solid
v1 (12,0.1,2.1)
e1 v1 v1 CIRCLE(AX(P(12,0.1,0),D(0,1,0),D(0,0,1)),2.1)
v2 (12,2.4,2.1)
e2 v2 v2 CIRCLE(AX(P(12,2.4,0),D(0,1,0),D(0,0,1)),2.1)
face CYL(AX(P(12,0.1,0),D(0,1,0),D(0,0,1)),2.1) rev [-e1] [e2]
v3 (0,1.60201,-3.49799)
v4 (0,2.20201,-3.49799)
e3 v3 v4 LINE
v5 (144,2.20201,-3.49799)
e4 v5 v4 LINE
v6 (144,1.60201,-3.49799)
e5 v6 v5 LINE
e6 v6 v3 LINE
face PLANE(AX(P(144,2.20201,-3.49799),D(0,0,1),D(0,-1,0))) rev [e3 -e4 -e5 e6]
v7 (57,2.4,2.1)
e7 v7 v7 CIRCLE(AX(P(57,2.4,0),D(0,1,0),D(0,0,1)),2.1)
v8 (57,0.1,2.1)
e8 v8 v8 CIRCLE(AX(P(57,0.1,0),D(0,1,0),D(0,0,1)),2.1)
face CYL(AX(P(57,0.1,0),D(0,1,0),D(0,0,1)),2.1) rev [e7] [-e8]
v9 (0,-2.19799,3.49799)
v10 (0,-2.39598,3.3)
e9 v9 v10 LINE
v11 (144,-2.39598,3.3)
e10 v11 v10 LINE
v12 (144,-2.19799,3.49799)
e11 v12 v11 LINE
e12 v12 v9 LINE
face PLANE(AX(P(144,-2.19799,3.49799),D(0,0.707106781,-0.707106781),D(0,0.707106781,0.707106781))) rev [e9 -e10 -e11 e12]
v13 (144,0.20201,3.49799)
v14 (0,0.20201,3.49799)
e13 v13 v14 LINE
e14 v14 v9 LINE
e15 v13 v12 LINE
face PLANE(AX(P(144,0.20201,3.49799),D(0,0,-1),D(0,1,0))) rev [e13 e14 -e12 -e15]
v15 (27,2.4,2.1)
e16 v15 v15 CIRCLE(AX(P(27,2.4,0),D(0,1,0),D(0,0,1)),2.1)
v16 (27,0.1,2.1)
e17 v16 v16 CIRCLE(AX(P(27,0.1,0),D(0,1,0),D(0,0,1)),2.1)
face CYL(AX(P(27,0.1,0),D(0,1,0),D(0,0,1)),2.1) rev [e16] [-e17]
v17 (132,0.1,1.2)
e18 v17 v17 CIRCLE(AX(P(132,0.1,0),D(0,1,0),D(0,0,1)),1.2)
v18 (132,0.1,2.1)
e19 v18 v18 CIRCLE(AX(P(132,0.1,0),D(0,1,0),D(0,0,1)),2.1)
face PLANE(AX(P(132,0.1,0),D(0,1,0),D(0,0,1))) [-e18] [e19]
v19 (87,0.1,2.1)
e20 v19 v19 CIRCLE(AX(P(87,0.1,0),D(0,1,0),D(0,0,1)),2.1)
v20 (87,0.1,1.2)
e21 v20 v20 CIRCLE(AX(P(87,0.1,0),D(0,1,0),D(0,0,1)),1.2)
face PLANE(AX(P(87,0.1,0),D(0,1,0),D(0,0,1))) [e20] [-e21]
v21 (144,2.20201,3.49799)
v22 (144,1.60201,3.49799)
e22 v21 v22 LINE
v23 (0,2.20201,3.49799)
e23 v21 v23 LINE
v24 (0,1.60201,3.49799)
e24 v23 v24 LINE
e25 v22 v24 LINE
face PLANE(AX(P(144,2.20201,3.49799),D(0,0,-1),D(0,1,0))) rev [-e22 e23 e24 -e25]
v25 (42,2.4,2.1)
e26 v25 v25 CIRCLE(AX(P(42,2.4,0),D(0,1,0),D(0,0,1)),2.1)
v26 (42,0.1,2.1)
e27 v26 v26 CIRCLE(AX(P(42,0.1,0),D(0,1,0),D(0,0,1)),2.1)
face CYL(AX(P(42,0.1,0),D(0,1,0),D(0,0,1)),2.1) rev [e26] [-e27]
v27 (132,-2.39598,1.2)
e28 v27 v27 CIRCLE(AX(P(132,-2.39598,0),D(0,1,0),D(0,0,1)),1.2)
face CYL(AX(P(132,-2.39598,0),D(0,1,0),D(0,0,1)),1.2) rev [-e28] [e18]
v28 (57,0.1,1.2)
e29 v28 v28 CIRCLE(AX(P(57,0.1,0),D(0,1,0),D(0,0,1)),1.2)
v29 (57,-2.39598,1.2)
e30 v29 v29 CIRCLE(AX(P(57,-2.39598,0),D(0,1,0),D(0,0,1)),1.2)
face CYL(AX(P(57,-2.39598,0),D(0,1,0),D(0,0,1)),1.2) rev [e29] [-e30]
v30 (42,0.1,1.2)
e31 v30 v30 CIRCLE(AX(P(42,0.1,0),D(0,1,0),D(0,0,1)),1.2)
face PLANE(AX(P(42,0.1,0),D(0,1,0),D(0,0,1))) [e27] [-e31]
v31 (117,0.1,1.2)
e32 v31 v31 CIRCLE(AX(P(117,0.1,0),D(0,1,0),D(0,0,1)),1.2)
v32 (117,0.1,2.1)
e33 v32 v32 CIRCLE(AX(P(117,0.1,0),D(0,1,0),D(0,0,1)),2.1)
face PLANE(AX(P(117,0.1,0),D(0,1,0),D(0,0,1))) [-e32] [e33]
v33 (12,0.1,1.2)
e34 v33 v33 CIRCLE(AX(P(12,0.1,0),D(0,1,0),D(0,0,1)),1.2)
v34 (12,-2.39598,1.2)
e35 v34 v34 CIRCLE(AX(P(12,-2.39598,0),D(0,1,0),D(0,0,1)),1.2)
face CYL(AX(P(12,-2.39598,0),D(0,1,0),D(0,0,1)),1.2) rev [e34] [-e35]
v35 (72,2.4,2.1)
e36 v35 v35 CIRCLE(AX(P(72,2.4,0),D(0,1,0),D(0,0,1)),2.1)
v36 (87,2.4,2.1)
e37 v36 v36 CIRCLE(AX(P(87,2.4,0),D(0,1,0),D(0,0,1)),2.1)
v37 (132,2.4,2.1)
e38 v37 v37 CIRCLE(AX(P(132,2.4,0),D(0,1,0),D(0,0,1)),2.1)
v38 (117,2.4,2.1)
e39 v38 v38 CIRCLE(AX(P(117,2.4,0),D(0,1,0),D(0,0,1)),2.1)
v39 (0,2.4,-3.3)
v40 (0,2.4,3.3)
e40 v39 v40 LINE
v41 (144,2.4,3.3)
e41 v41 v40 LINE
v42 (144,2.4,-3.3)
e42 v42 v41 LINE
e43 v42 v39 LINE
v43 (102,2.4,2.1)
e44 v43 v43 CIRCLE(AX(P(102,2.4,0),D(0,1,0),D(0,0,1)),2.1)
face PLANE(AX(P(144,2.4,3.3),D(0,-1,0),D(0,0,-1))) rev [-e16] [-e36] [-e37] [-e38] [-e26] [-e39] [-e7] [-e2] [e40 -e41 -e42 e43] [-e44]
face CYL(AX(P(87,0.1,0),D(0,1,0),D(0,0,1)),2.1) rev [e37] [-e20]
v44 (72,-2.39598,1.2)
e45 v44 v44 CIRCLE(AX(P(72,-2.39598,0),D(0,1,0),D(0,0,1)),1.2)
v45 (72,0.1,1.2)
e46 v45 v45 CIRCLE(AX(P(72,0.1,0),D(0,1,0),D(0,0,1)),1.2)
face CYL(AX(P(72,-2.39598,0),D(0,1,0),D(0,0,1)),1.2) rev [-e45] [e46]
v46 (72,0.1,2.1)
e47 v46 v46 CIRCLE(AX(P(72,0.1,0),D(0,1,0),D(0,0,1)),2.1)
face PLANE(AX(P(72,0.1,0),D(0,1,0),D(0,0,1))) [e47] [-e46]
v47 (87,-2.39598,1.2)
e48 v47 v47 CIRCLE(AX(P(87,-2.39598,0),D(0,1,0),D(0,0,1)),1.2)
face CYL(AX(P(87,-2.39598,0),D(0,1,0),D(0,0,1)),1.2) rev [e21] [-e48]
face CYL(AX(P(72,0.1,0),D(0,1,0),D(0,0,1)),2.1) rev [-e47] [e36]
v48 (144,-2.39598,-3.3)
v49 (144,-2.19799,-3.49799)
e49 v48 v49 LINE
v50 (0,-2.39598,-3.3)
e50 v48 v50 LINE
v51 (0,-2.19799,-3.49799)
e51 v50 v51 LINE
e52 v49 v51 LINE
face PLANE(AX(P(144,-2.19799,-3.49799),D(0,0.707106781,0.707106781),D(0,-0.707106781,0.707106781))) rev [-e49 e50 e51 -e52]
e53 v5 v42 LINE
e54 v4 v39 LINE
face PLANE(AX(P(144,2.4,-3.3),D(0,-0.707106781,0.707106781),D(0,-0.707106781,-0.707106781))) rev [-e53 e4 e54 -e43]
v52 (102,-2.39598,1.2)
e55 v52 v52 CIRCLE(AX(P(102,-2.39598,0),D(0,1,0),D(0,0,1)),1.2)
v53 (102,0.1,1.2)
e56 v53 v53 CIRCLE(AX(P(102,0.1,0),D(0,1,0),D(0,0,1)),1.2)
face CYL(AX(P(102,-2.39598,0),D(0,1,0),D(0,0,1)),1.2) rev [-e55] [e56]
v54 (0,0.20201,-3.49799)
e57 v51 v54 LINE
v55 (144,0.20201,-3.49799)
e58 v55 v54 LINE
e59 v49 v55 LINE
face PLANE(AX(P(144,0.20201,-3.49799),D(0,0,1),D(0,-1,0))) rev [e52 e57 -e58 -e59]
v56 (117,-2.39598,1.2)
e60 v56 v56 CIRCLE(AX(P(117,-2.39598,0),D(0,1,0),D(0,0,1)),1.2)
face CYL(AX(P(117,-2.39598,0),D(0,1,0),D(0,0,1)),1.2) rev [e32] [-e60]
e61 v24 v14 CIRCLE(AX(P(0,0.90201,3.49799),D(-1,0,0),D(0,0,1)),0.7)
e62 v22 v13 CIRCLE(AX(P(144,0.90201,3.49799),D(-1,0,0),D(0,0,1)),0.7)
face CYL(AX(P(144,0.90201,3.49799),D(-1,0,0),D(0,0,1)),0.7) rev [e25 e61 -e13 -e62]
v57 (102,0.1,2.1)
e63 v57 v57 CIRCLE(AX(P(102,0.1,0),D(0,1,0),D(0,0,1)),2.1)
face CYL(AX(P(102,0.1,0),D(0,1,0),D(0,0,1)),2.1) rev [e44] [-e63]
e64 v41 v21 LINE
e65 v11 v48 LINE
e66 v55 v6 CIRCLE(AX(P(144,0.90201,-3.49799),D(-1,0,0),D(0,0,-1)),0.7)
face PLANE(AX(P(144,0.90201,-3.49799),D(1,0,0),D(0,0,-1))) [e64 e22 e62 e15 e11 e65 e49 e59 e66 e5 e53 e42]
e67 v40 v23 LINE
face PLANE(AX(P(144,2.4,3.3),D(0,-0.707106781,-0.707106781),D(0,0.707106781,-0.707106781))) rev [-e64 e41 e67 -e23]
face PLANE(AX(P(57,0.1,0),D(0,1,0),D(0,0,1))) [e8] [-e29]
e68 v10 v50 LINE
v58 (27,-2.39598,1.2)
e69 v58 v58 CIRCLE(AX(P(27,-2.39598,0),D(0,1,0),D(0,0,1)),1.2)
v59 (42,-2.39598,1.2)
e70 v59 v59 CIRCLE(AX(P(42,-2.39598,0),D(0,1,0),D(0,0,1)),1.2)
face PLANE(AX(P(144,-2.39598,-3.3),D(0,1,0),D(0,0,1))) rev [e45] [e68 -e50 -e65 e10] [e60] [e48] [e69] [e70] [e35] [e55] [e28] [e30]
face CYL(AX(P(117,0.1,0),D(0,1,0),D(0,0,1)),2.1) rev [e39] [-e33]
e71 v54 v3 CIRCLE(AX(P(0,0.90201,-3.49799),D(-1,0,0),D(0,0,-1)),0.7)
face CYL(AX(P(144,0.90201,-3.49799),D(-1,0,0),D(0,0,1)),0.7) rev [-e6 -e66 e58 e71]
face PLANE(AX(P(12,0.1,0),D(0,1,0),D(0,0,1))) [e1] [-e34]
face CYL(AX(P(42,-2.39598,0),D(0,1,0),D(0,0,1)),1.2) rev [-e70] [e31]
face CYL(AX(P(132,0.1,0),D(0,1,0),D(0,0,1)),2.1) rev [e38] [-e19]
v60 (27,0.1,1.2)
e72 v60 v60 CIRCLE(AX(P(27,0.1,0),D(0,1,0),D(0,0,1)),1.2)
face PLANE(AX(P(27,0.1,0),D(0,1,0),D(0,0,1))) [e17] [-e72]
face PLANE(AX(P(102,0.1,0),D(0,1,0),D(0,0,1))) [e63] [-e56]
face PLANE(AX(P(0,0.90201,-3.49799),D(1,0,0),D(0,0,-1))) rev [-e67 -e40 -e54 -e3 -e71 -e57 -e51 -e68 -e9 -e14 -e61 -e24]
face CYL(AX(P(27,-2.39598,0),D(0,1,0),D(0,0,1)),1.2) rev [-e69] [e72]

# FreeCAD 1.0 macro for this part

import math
import FreeCAD as App
import Part
import Sketcher
Q = App.Units.Quantity

doc = App.newDocument("Part")
body = doc.addObject("PartDesign::Body", "Body")

# Sketch on YZ plane
sketch1 = doc.addObject("Sketcher::SketchObject", "Sketch")
body.addObject(sketch1)
sketch1.AttachmentSupport = (doc.YZ_Plane, [""])
sketch1.MapMode = "FlatFace"
sketch1.addGeometry([
    Part.LineSegment(App.Vector(-2.19799, -3.49799, 0), App.Vector(0.20201, -3.49799, 0)),  # 0
    Part.ArcOfCircle(Part.Circle(App.Vector(0.90201, -3.49799, 0), App.Vector(0, 0, 1), 0.7), math.radians(0), math.radians(180)),  # 1
    Part.LineSegment(App.Vector(1.60201, -3.49799, 0), App.Vector(2.20201, -3.49799, 0)),  # 2
    Part.LineSegment(App.Vector(2.20201, -3.49799, 0), App.Vector(2.4, -3.3, 0)),  # 3
    Part.LineSegment(App.Vector(2.4, -3.3, 0), App.Vector(2.4, 3.3, 0)),  # 4
    Part.LineSegment(App.Vector(2.4, 3.3, 0), App.Vector(2.20201, 3.49799, 0)),  # 5
    Part.LineSegment(App.Vector(2.20201, 3.49799, 0), App.Vector(1.60201, 3.49799, 0)),  # 6
    Part.ArcOfCircle(Part.Circle(App.Vector(0.90201, 3.49799, 0), App.Vector(0, 0, 1), 0.7), math.radians(180), math.radians(360)),  # 7
    Part.LineSegment(App.Vector(0.20201, 3.49799, 0), App.Vector(-2.19799, 3.49799, 0)),  # 8
    Part.LineSegment(App.Vector(-2.19799, 3.49799, 0), App.Vector(-2.39598, 3.3, 0)),  # 9
    Part.LineSegment(App.Vector(-2.39598, 3.3, 0), App.Vector(-2.39598, -3.3, 0)),  # 10
    Part.LineSegment(App.Vector(-2.39598, -3.3, 0), App.Vector(-2.19799, -3.49799, 0)),  # 11
], False)
sketch1.addConstraint([
    Sketcher.Constraint("Coincident", 0, 2, 1, 2),
    Sketcher.Constraint("Coincident", 1, 1, 2, 1),
    Sketcher.Constraint("Coincident", 2, 2, 3, 1),
    Sketcher.Constraint("Coincident", 3, 2, 4, 1),
    Sketcher.Constraint("Coincident", 4, 2, 5, 1),
    Sketcher.Constraint("Coincident", 5, 2, 6, 1),
    Sketcher.Constraint("Coincident", 6, 2, 7, 2),
    Sketcher.Constraint("Coincident", 7, 1, 8, 1),
    Sketcher.Constraint("Coincident", 8, 2, 9, 1),
    Sketcher.Constraint("Coincident", 9, 2, 10, 1),
    Sketcher.Constraint("Coincident", 10, 2, 11, 1),
    Sketcher.Constraint("Coincident", 11, 2, 0, 1),
    Sketcher.Constraint("Horizontal", 0),
    Sketcher.Constraint("Horizontal", 2),
    Sketcher.Constraint("Vertical", 4),
    Sketcher.Constraint("Horizontal", 6),
    Sketcher.Constraint("Horizontal", 8),
    Sketcher.Constraint("Vertical", 10),
    Sketcher.Constraint("Equal", 1, 7),
    Sketcher.Constraint("Symmetric", 1, 3, 7, 3, -1),
    Sketcher.Constraint("Symmetric", 2, 2, 5, 2, -1),
    Sketcher.Constraint("Symmetric", 8, 2, 11, 2, -1),
    Sketcher.Constraint("Perpendicular", 3, 5),
    Sketcher.Constraint("Perpendicular", 5, 9),
    Sketcher.Constraint("Perpendicular", 9, 11),
    Sketcher.Constraint("Horizontal", 1, 3, 0, 2),
    Sketcher.Constraint("Horizontal", 0, 2, 1, 1),
    Sketcher.Constraint("Horizontal", 4, 2, 9, 2),
    Sketcher.Constraint("Horizontal", 3, 2, 10, 2),
    Sketcher.Constraint("Radius", 1, Q("0.7 mm")),
    Sketcher.Constraint("DistanceX", 0, 1, 0, 2, Q("2.4 mm")),
    Sketcher.Constraint("DistanceX", 2, 1, 2, 2, Q("0.6 mm")),
    Sketcher.Constraint("DistanceY", 4, 1, 4, 2, Q("6.6 mm")),
    Sketcher.Constraint("DistanceX", -1, 1, 3, 2, Q("2.4 mm")),
    Sketcher.Constraint("Distance", 3, Q("0.28 mm")),
])
pad1 = doc.addObject("PartDesign::Pad", "Pad")
body.addObject(pad1)
pad1.Profile = sketch1
pad1.Length = 144

# Sketch on XZ plane
sketch2 = doc.addObject("Sketcher::SketchObject", "Sketch001")
body.addObject(sketch2)
sketch2.AttachmentSupport = (doc.XZ_Plane, [""])
sketch2.MapMode = "FlatFace"
sketch2.AttachmentOffset = App.Placement(App.Vector(0, 0, -2.4), App.Rotation())
sketch2.addGeometry([
    Part.Circle(App.Vector(12, 0, 0), App.Vector(0, 0, 1), 2.1),  # 0
    Part.Circle(App.Vector(27, 0, 0), App.Vector(0, 0, 1), 2.1),  # 1
    Part.Circle(App.Vector(42, 0, 0), App.Vector(0, 0, 1), 2.1),  # 2
    Part.Circle(App.Vector(57, 0, 0), App.Vector(0, 0, 1), 2.1),  # 3
    Part.Circle(App.Vector(72, 0, 0), App.Vector(0, 0, 1), 2.1),  # 4
    Part.Circle(App.Vector(87, 0, 0), App.Vector(0, 0, 1), 2.1),  # 5
    Part.Circle(App.Vector(102, 0, 0), App.Vector(0, 0, 1), 2.1),  # 6
    Part.Circle(App.Vector(117, 0, 0), App.Vector(0, 0, 1), 2.1),  # 7
    Part.Circle(App.Vector(132, 0, 0), App.Vector(0, 0, 1), 2.1),  # 8
    Part.Circle(App.Vector(147, 0, 0), App.Vector(0, 0, 1), 2.1),  # 9
    Part.Circle(App.Vector(162, 0, 0), App.Vector(0, 0, 1), 2.1),  # 10
    Part.Circle(App.Vector(177, 0, 0), App.Vector(0, 0, 1), 2.1),  # 11
    Part.Circle(App.Vector(192, 0, 0), App.Vector(0, 0, 1), 2.1),  # 12
    Part.Circle(App.Vector(207, 0, 0), App.Vector(0, 0, 1), 2.1),  # 13
    Part.Circle(App.Vector(222, 0, 0), App.Vector(0, 0, 1), 2.1),  # 14
], False)
sketch2.addConstraint([
    Sketcher.Constraint("Equal", 0, 1),
    Sketcher.Constraint("Equal", 1, 2),
    Sketcher.Constraint("Equal", 2, 3),
    Sketcher.Constraint("Equal", 3, 4),
    Sketcher.Constraint("Equal", 4, 5),
    Sketcher.Constraint("Equal", 5, 6),
    Sketcher.Constraint("Equal", 6, 7),
    Sketcher.Constraint("Equal", 7, 8),
    Sketcher.Constraint("Equal", 8, 9),
    Sketcher.Constraint("Equal", 9, 10),
    Sketcher.Constraint("Equal", 10, 11),
    Sketcher.Constraint("Equal", 11, 12),
    Sketcher.Constraint("Equal", 12, 13),
    Sketcher.Constraint("Equal", 13, 14),
    Sketcher.Constraint("PointOnObject", 0, 3, -1),
    Sketcher.Constraint("PointOnObject", 1, 3, -1),
    Sketcher.Constraint("PointOnObject", 2, 3, -1),
    Sketcher.Constraint("PointOnObject", 3, 3, -1),
    Sketcher.Constraint("PointOnObject", 4, 3, -1),
    Sketcher.Constraint("PointOnObject", 5, 3, -1),
    Sketcher.Constraint("PointOnObject", 6, 3, -1),
    Sketcher.Constraint("PointOnObject", 7, 3, -1),
    Sketcher.Constraint("PointOnObject", 8, 3, -1),
    Sketcher.Constraint("PointOnObject", 9, 3, -1),
    Sketcher.Constraint("PointOnObject", 10, 3, -1),
    Sketcher.Constraint("PointOnObject", 11, 3, -1),
    Sketcher.Constraint("PointOnObject", 12, 3, -1),
    Sketcher.Constraint("PointOnObject", 13, 3, -1),
    Sketcher.Constraint("PointOnObject", 14, 3, -1),
    Sketcher.Constraint("Diameter", 0, Q("4.2 mm")),
    Sketcher.Constraint("DistanceX", -1, 1, 0, 3, Q("12 mm")),
    Sketcher.Constraint("DistanceX", -1, 1, 1, 3, Q("27 mm")),
    Sketcher.Constraint("DistanceX", -1, 1, 2, 3, Q("42 mm")),
    Sketcher.Constraint("DistanceX", -1, 1, 3, 3, Q("57 mm")),
    Sketcher.Constraint("DistanceX", -1, 1, 4, 3, Q("72 mm")),
    Sketcher.Constraint("DistanceX", -1, 1, 5, 3, Q("87 mm")),
    Sketcher.Constraint("DistanceX", -1, 1, 6, 3, Q("102 mm")),
    Sketcher.Constraint("DistanceX", -1, 1, 7, 3, Q("117 mm")),
    Sketcher.Constraint("DistanceX", -1, 1, 8, 3, Q("132 mm")),
    Sketcher.Constraint("DistanceX", -1, 1, 9, 3, Q("147 mm")),
    Sketcher.Constraint("DistanceX", -1, 1, 10, 3, Q("162 mm")),
    Sketcher.Constraint("DistanceX", -1, 1, 11, 3, Q("177 mm")),
    Sketcher.Constraint("DistanceX", -1, 1, 12, 3, Q("192 mm")),
    Sketcher.Constraint("DistanceX", -1, 1, 13, 3, Q("207 mm")),
    Sketcher.Constraint("DistanceX", -1, 1, 14, 3, Q("222 mm")),
])
pocket1 = doc.addObject("PartDesign::Pocket", "Pocket")
body.addObject(pocket1)
pocket1.Profile = sketch2
pocket1.Length = 2.3
pocket1.Reversed = True

# Sketch on XZ plane
sketch3 = doc.addObject("Sketcher::SketchObject", "Sketch002")
body.addObject(sketch3)
sketch3.AttachmentSupport = (doc.XZ_Plane, [""])
sketch3.MapMode = "FlatFace"
sketch3.AttachmentOffset = App.Placement(App.Vector(0, 0, -2.4), App.Rotation())
sketch3.addGeometry([
    Part.Circle(App.Vector(12, 0, 0), App.Vector(0, 0, 1), 1.2),  # 0
    Part.Circle(App.Vector(27, 0, 0), App.Vector(0, 0, 1), 1.2),  # 1
    Part.Circle(App.Vector(42, 0, 0), App.Vector(0, 0, 1), 1.2),  # 2
    Part.Circle(App.Vector(57, 0, 0), App.Vector(0, 0, 1), 1.2),  # 3
    Part.Circle(App.Vector(72, 0, 0), App.Vector(0, 0, 1), 1.2),  # 4
    Part.Circle(App.Vector(87, 0, 0), App.Vector(0, 0, 1), 1.2),  # 5
    Part.Circle(App.Vector(102, 0, 0), App.Vector(0, 0, 1), 1.2),  # 6
    Part.Circle(App.Vector(117, 0, 0), App.Vector(0, 0, 1), 1.2),  # 7
    Part.Circle(App.Vector(132, 0, 0), App.Vector(0, 0, 1), 1.2),  # 8
    Part.Circle(App.Vector(147, 0, 0), App.Vector(0, 0, 1), 1.2),  # 9
    Part.Circle(App.Vector(162, 0, 0), App.Vector(0, 0, 1), 1.2),  # 10
    Part.Circle(App.Vector(177, 0, 0), App.Vector(0, 0, 1), 1.2),  # 11
    Part.Circle(App.Vector(192, 0, 0), App.Vector(0, 0, 1), 1.2),  # 12
    Part.Circle(App.Vector(207, 0, 0), App.Vector(0, 0, 1), 1.2),  # 13
    Part.Circle(App.Vector(222, 0, 0), App.Vector(0, 0, 1), 1.2),  # 14
], False)
sketch3.addConstraint([
    Sketcher.Constraint("Equal", 0, 1),
    Sketcher.Constraint("Equal", 1, 2),
    Sketcher.Constraint("Equal", 2, 3),
    Sketcher.Constraint("Equal", 3, 4),
    Sketcher.Constraint("Equal", 4, 5),
    Sketcher.Constraint("Equal", 5, 6),
    Sketcher.Constraint("Equal", 6, 7),
    Sketcher.Constraint("Equal", 7, 8),
    Sketcher.Constraint("Equal", 8, 9),
    Sketcher.Constraint("Equal", 9, 10),
    Sketcher.Constraint("Equal", 10, 11),
    Sketcher.Constraint("Equal", 11, 12),
    Sketcher.Constraint("Equal", 12, 13),
    Sketcher.Constraint("Equal", 13, 14),
    Sketcher.Constraint("PointOnObject", 0, 3, -1),
    Sketcher.Constraint("PointOnObject", 1, 3, -1),
    Sketcher.Constraint("PointOnObject", 2, 3, -1),
    Sketcher.Constraint("PointOnObject", 3, 3, -1),
    Sketcher.Constraint("PointOnObject", 4, 3, -1),
    Sketcher.Constraint("PointOnObject", 5, 3, -1),
    Sketcher.Constraint("PointOnObject", 6, 3, -1),
    Sketcher.Constraint("PointOnObject", 7, 3, -1),
    Sketcher.Constraint("PointOnObject", 8, 3, -1),
    Sketcher.Constraint("PointOnObject", 9, 3, -1),
    Sketcher.Constraint("PointOnObject", 10, 3, -1),
    Sketcher.Constraint("PointOnObject", 11, 3, -1),
    Sketcher.Constraint("PointOnObject", 12, 3, -1),
    Sketcher.Constraint("PointOnObject", 13, 3, -1),
    Sketcher.Constraint("PointOnObject", 14, 3, -1),
    Sketcher.Constraint("Diameter", 0, Q("2.4 mm")),
    Sketcher.Constraint("DistanceX", -1, 1, 0, 3, Q("12 mm")),
    Sketcher.Constraint("DistanceX", -1, 1, 1, 3, Q("27 mm")),
    Sketcher.Constraint("DistanceX", -1, 1, 2, 3, Q("42 mm")),
    Sketcher.Constraint("DistanceX", -1, 1, 3, 3, Q("57 mm")),
    Sketcher.Constraint("DistanceX", -1, 1, 4, 3, Q("72 mm")),
    Sketcher.Constraint("DistanceX", -1, 1, 5, 3, Q("87 mm")),
    Sketcher.Constraint("DistanceX", -1, 1, 6, 3, Q("102 mm")),
    Sketcher.Constraint("DistanceX", -1, 1, 7, 3, Q("117 mm")),
    Sketcher.Constraint("DistanceX", -1, 1, 8, 3, Q("132 mm")),
    Sketcher.Constraint("DistanceX", -1, 1, 9, 3, Q("147 mm")),
    Sketcher.Constraint("DistanceX", -1, 1, 10, 3, Q("162 mm")),
    Sketcher.Constraint("DistanceX", -1, 1, 11, 3, Q("177 mm")),
    Sketcher.Constraint("DistanceX", -1, 1, 12, 3, Q("192 mm")),
    Sketcher.Constraint("DistanceX", -1, 1, 13, 3, Q("207 mm")),
    Sketcher.Constraint("DistanceX", -1, 1, 14, 3, Q("222 mm")),
])
pocket2 = doc.addObject("PartDesign::Pocket", "Pocket001")
body.addObject(pocket2)
pocket2.Profile = sketch3
pocket2.Type = "ThroughAll"
pocket2.Midplane = True

doc.recompute()
